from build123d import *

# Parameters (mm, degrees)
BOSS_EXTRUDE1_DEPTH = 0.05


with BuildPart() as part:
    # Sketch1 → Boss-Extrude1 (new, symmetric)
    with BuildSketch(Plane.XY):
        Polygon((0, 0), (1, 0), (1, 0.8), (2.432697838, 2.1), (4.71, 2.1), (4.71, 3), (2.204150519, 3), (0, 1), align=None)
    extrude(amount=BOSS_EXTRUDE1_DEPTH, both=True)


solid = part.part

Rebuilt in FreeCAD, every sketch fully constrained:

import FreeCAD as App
import Part
import Sketcher
from FreeCAD import Vector
Q = App.Units.Quantity

doc = App.newDocument("Part")
body = doc.addObject("PartDesign::Body", "Body")

sketch1 = body.newObject("Sketcher::SketchObject", "Sketch")
sketch1.AttachmentSupport = (doc.getObject("XY_Plane"), [""])
sketch1.MapMode = "FlatFace"
sketch1.addGeometry([
    Part.LineSegment(Vector(0, 0, 0), Vector(1, 0, 0)),
    Part.LineSegment(Vector(1, 0, 0), Vector(1, 0.8, 0)),
    Part.LineSegment(Vector(1, 0.8, 0), Vector(2.4, 2.1, 0)),
    Part.LineSegment(Vector(2.4, 2.1, 0), Vector(4.7, 2.1, 0)),
    Part.LineSegment(Vector(4.7, 2.1, 0), Vector(4.7, 3, 0)),
    Part.LineSegment(Vector(4.7, 3, 0), Vector(2.2, 3, 0)),
    Part.LineSegment(Vector(2.2, 3, 0), Vector(0, 1, 0)),
    Part.LineSegment(Vector(0, 1, 0), Vector(0, 0, 0)),
], False)
sketch1.addConstraint([
    Sketcher.Constraint("Coincident", 0, 2, 1, 1),
    Sketcher.Constraint("Coincident", 1, 2, 2, 1),
    Sketcher.Constraint("Coincident", 2, 2, 3, 1),
    Sketcher.Constraint("Coincident", 3, 2, 4, 1),
    Sketcher.Constraint("Coincident", 4, 2, 5, 1),
    Sketcher.Constraint("Coincident", 5, 2, 6, 1),
    Sketcher.Constraint("Coincident", 6, 2, 7, 1),
    Sketcher.Constraint("Coincident", 7, 2, 0, 1),
    Sketcher.Constraint("Horizontal", 0),
    Sketcher.Constraint("Vertical", 1),
    Sketcher.Constraint("Horizontal", 3),
    Sketcher.Constraint("Vertical", 4),
    Sketcher.Constraint("Horizontal", 5),
    Sketcher.Constraint("Vertical", 7),
    Sketcher.Constraint("Coincident", 7, 2, -1, 1),
    Sketcher.Constraint("Parallel", 2, 6),
    Sketcher.Constraint("Equal", 0, 7),
    Sketcher.Constraint("DistanceX", 0, 1, 0, 2, Q("1 mm")),
    Sketcher.Constraint("DistanceY", 1, 1, 1, 2, Q("0.8 mm")),
    Sketcher.Constraint("DistanceY", 4, 1, 4, 2, Q("0.9 mm")),
    Sketcher.Constraint("DistanceY", -1, 1, 4, 2, Q("3 mm")),
    Sketcher.Constraint("DistanceX", -1, 1, 3, 2, Q("4.71 mm")),
    Sketcher.Constraint("DistanceX", 5, 2, 5, 1, Q("2.505849 mm")),
])
pad1 = body.newObject("PartDesign::Pad", "Pad")
pad1.Profile = sketch1
pad1.Length = 0.1
pad1.Midplane = True

doc.recompute()
